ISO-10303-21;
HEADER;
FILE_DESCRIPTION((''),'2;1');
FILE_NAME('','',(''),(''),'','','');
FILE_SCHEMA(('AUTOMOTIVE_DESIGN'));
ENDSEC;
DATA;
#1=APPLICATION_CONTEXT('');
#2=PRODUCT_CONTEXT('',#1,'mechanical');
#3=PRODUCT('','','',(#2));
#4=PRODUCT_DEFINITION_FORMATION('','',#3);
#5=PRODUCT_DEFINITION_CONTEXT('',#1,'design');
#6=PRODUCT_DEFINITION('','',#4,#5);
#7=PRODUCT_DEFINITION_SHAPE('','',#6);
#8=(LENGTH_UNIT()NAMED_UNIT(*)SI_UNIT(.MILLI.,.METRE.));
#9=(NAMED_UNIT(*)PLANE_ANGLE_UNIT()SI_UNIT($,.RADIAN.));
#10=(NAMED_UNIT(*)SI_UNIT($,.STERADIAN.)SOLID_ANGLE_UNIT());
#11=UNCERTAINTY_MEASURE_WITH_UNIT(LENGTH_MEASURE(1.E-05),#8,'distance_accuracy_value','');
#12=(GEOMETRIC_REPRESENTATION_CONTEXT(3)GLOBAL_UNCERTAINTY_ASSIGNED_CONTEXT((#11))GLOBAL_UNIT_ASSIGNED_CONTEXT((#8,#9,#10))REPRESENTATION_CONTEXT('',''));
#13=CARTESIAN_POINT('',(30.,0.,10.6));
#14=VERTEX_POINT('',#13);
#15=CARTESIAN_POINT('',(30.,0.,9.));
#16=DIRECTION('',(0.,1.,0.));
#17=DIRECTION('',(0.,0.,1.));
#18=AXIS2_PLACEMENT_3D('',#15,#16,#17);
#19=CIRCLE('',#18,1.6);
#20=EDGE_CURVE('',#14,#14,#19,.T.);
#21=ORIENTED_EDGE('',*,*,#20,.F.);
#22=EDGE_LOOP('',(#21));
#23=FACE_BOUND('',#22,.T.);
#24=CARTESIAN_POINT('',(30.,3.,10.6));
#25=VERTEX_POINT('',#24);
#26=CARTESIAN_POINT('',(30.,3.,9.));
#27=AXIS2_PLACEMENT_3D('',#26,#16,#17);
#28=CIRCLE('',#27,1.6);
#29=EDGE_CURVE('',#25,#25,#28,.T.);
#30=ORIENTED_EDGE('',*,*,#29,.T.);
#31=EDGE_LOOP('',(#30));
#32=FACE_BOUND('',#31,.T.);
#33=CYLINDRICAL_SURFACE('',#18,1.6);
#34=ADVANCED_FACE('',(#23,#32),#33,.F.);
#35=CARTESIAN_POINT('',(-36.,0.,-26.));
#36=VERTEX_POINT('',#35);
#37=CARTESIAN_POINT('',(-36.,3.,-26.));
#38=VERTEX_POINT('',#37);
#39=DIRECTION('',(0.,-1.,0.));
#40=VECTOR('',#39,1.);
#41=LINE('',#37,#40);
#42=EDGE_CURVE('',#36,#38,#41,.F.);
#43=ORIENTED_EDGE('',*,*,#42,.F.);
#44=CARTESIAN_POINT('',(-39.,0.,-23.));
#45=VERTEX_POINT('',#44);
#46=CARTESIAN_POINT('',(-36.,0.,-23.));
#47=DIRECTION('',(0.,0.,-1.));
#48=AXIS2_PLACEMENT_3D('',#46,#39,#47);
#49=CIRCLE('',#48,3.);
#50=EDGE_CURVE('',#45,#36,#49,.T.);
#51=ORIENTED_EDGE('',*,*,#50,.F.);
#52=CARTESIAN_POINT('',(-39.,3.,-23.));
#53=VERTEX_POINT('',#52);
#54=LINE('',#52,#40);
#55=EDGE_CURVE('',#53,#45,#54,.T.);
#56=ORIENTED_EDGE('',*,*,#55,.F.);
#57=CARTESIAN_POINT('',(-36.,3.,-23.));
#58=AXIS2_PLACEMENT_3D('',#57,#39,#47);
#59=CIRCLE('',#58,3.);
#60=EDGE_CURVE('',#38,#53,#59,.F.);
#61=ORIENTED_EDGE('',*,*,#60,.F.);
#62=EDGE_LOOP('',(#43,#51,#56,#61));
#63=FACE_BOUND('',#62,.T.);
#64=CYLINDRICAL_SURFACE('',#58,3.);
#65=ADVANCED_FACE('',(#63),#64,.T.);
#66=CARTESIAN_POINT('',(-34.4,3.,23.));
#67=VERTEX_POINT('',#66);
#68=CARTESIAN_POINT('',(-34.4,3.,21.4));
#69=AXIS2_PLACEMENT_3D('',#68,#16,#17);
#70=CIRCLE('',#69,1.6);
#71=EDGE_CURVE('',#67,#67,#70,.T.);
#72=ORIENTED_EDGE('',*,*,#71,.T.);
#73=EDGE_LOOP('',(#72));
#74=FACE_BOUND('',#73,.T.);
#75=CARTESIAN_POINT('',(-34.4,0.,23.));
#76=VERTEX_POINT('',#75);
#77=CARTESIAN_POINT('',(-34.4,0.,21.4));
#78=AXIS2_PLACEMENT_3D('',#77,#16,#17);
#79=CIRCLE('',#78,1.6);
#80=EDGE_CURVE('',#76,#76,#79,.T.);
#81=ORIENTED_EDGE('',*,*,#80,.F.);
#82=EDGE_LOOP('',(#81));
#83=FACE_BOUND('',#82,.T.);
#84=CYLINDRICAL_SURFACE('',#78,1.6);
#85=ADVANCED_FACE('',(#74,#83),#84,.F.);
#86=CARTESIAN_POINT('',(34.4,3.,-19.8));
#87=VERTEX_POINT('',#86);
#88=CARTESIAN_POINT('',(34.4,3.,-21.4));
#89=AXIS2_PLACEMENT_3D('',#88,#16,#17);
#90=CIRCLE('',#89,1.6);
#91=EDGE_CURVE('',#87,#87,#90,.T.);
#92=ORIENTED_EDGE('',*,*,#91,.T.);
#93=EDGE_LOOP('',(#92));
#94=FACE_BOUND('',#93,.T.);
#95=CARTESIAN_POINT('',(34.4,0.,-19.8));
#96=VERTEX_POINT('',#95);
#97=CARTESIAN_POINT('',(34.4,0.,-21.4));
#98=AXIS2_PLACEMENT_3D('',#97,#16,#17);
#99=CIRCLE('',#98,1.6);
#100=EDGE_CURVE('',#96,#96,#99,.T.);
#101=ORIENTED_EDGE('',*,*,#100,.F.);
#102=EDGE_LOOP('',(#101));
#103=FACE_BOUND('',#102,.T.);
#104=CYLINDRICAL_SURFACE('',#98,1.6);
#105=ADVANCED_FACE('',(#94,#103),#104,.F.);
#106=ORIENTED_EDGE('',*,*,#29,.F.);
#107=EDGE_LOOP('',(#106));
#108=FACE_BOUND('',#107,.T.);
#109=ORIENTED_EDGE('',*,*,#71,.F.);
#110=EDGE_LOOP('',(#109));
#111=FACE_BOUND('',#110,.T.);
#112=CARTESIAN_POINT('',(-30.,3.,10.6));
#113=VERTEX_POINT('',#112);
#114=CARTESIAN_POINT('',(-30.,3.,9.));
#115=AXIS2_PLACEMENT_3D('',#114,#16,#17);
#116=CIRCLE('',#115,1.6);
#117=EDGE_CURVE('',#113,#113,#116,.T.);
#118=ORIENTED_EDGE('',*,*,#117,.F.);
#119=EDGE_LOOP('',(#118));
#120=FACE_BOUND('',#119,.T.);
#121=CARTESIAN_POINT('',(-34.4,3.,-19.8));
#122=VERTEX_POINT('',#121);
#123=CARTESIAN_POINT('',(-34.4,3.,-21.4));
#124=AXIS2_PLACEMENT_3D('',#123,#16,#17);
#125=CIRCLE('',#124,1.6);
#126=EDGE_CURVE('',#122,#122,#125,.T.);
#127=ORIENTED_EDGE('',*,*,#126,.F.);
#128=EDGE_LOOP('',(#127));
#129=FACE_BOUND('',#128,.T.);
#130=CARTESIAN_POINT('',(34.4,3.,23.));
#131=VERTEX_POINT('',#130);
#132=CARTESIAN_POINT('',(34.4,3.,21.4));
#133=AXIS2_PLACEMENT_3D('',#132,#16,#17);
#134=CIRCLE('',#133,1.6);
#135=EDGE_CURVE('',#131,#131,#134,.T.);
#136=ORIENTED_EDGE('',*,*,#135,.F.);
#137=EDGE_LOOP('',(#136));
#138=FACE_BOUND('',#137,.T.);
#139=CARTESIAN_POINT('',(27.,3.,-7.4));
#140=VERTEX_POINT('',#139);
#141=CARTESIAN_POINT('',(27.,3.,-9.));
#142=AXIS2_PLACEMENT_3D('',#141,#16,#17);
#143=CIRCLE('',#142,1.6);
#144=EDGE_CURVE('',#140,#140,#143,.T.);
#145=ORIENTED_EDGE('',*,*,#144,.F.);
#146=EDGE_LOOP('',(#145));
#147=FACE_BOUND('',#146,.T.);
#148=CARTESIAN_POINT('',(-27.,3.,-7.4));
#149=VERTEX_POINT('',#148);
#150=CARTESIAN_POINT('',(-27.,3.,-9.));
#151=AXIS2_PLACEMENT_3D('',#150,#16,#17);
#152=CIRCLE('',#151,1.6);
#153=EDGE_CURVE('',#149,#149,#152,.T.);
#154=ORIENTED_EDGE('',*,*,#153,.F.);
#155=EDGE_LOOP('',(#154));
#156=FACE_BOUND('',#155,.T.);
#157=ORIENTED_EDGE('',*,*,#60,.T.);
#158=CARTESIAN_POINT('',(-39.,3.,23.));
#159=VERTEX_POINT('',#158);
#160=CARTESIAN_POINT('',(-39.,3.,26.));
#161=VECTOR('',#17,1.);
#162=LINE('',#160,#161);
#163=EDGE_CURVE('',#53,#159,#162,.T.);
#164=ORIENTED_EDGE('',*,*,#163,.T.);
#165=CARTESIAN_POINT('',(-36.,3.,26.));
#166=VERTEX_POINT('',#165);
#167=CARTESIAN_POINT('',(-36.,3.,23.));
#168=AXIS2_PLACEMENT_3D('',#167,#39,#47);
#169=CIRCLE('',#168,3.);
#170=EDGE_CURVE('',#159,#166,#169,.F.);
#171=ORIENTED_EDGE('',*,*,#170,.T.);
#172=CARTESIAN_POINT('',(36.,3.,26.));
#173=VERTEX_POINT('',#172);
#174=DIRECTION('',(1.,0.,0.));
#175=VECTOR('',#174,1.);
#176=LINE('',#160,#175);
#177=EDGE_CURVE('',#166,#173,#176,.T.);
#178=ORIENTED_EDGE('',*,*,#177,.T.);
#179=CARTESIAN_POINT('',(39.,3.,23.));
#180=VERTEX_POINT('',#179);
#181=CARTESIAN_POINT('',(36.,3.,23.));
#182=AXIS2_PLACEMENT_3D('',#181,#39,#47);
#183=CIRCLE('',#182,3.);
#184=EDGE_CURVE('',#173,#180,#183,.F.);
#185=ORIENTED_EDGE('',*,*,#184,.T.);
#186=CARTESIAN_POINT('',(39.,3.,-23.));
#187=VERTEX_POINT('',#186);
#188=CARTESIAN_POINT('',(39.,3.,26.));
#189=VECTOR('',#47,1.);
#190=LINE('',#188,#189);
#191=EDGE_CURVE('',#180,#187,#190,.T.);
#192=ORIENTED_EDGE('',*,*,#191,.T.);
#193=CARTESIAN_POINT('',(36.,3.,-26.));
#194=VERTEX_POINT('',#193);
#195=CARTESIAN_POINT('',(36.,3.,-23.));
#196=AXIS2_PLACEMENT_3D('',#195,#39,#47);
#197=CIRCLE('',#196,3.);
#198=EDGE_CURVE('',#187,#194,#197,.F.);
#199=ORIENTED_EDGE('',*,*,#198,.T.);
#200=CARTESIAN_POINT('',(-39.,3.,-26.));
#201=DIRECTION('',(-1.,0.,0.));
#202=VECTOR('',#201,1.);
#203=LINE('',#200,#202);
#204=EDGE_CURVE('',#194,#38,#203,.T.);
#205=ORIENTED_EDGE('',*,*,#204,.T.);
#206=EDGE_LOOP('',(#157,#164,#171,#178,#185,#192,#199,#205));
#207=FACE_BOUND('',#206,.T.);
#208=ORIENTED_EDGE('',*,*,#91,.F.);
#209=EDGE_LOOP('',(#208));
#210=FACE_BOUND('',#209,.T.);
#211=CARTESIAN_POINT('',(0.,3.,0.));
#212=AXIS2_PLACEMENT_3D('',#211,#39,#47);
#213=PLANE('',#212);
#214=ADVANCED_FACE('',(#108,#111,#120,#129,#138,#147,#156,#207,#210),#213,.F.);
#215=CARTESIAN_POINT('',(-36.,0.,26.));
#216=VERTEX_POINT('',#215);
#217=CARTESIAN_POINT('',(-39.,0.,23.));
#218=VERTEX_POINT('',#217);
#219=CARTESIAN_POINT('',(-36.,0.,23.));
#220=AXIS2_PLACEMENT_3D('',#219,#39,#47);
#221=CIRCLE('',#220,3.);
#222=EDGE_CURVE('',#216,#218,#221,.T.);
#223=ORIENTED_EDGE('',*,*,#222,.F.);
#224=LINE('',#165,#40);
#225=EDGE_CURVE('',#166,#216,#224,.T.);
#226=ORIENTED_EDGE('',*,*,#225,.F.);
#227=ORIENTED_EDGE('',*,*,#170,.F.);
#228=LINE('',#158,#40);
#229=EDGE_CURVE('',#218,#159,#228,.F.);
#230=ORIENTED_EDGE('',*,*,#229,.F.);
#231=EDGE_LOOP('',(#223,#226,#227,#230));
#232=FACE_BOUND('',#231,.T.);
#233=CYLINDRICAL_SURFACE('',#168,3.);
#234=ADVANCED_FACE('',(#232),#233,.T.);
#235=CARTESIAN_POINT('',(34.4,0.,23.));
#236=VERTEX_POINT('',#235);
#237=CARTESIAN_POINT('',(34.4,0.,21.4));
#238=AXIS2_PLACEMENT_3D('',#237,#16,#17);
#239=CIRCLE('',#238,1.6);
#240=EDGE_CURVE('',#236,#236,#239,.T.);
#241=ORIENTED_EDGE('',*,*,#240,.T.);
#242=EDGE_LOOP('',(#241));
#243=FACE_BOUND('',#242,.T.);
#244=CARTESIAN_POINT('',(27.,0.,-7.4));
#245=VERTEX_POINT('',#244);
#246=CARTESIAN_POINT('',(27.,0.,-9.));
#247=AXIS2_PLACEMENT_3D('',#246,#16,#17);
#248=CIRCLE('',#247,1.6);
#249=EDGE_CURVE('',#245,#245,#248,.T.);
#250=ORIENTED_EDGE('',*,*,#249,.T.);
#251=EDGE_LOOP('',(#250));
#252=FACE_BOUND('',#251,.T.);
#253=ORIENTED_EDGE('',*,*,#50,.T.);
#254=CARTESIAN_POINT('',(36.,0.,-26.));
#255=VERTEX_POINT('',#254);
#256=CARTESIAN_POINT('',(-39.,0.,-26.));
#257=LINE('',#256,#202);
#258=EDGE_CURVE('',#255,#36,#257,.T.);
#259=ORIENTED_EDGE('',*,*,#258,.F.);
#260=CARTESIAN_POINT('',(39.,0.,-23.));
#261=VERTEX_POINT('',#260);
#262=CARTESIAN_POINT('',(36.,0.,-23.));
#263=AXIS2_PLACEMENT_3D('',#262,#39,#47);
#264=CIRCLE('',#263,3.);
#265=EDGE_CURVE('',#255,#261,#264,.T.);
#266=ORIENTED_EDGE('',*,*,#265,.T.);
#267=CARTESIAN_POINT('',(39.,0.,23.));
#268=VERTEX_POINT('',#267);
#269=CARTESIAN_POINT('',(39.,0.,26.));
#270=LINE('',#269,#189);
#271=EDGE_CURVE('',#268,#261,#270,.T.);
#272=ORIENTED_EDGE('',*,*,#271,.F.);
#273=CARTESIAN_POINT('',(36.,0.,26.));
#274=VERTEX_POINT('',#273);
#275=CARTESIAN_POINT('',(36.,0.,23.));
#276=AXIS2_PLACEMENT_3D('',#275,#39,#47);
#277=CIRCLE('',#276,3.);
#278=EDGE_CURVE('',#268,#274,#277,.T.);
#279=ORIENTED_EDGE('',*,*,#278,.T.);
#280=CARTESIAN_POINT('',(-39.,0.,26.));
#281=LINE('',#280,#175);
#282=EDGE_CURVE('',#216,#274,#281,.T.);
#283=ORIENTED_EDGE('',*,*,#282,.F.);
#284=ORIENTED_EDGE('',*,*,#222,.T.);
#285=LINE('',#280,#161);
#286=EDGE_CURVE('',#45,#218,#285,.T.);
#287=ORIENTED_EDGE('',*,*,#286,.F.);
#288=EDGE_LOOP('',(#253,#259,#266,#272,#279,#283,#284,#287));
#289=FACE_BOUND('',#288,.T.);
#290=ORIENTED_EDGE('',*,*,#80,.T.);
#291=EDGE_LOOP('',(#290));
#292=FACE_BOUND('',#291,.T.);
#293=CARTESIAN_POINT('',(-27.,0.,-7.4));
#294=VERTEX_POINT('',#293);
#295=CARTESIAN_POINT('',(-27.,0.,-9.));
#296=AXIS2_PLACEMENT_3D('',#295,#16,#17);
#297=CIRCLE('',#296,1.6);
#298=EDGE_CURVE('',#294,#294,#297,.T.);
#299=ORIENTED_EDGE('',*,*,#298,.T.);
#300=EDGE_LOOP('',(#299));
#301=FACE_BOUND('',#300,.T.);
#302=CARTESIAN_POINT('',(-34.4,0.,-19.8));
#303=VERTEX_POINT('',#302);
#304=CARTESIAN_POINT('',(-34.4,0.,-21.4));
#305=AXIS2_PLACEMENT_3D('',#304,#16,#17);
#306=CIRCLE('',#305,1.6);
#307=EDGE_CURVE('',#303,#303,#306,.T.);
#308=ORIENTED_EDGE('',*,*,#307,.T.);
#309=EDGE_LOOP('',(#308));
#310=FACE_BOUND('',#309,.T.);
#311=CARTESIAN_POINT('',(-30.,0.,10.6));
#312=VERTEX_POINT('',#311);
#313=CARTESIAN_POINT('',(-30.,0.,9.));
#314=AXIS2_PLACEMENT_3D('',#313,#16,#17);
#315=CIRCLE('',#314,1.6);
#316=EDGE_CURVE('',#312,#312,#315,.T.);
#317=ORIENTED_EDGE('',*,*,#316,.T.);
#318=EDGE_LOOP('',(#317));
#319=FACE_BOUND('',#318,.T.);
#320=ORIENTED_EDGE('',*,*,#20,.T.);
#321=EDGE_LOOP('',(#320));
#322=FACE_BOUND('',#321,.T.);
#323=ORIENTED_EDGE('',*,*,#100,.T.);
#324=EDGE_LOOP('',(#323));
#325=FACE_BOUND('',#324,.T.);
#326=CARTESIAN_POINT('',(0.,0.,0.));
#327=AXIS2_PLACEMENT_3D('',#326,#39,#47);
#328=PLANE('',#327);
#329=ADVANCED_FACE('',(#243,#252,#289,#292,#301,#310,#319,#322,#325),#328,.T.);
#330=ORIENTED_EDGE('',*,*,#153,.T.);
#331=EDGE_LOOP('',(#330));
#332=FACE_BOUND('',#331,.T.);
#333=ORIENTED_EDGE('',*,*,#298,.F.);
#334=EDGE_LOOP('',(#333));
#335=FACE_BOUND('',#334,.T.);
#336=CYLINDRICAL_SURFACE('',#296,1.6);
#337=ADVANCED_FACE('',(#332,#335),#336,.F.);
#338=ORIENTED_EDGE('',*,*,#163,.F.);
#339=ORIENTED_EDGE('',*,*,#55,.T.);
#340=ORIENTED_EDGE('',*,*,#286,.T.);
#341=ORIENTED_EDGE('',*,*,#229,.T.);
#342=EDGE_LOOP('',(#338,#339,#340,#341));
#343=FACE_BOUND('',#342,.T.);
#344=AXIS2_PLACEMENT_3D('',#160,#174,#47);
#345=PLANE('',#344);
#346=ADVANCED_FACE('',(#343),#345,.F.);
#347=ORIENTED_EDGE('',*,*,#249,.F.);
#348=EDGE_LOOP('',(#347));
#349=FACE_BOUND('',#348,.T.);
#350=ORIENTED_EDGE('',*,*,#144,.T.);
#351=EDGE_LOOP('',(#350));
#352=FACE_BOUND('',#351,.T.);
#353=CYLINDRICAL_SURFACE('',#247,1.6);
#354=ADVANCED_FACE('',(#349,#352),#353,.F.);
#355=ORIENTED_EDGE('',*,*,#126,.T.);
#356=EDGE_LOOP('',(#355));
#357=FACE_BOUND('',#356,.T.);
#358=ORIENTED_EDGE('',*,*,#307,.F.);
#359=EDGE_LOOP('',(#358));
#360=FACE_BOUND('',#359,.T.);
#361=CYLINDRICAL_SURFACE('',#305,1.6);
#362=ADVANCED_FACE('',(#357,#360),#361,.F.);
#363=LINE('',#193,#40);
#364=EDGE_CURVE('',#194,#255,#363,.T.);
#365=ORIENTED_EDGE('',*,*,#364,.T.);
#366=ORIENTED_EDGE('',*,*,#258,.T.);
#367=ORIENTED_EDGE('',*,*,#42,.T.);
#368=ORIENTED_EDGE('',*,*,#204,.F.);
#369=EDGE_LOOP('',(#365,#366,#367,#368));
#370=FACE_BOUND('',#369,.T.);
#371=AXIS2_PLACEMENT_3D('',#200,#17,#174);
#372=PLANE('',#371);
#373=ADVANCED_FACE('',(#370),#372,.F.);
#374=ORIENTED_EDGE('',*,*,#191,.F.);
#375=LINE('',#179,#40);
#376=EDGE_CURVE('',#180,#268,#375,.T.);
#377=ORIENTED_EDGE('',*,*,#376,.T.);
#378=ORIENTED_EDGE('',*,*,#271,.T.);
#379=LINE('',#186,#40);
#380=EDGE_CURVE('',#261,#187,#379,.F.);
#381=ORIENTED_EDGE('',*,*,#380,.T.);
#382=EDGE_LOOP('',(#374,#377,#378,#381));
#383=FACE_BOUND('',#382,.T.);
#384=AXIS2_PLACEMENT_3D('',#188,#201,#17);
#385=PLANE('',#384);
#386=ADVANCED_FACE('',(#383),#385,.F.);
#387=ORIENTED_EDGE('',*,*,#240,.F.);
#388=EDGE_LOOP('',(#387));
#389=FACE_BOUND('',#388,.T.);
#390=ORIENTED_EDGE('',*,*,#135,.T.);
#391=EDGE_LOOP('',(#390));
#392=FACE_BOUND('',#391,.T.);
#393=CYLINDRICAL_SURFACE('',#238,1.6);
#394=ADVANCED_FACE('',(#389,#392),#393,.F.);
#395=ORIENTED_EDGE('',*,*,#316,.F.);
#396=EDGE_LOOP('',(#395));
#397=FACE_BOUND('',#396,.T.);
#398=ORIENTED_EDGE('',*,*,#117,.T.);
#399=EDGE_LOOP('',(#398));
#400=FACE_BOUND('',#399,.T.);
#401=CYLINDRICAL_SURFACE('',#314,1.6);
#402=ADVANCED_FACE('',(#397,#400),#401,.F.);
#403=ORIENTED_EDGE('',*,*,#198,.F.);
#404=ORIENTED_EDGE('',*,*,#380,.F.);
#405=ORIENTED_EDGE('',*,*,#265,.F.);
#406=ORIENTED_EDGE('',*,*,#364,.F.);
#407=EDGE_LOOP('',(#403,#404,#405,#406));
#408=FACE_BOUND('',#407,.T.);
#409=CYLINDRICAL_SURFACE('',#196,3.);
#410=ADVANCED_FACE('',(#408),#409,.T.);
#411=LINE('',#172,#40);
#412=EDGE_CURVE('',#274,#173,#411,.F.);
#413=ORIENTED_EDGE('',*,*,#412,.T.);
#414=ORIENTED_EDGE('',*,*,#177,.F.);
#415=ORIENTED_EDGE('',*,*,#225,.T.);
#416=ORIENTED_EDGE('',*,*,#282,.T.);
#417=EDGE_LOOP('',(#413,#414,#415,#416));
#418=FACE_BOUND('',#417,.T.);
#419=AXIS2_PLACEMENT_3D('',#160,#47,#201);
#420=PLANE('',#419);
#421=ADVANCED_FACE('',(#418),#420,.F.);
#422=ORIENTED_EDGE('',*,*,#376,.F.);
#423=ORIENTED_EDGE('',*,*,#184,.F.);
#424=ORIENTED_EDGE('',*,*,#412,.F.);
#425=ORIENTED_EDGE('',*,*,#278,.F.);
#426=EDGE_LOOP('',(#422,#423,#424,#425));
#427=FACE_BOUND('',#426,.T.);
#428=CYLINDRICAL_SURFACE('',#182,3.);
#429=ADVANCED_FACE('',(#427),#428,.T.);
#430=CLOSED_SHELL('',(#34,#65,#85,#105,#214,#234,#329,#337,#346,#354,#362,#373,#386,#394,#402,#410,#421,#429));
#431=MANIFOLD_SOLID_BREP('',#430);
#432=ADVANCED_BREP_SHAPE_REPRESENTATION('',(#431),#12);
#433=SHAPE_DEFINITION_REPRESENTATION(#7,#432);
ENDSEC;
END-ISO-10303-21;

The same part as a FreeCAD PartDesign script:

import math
import FreeCAD as App
import Part
import Sketcher
from FreeCAD import Vector


def edges_at(feature, points):
    """Names of the edges that pass closest to the given points."""
    edges = feature.Shape.Edges
    near = lambda p: min(range(len(edges)), key=lambda i: edges[i].distToShape(Part.Vertex(*p))[0])
    return sorted({f"Edge{near(p) + 1}" for p in points})


def add_polygon(sketch, points):
    """Adds a closed chain of lines whose ends are joined by coincident constraints."""
    first, n = sketch.GeometryCount, len(points)
    for a, b in zip(points, points[1:] + points[:1]):
        sketch.addGeometry(Part.LineSegment(App.Vector(*a, 0), App.Vector(*b, 0)), False)
    for i in range(n):
        sketch.addConstraint(Sketcher.Constraint("Coincident", first + i, 2, first + (i + 1) % n, 1))

doc = App.newDocument("Part")
body = doc.addObject("PartDesign::Body", "Body")

# Sketch on XZ plane
sketch1 = doc.addObject("Sketcher::SketchObject", "Sketch")
body.addObject(sketch1)
sketch1.AttachmentSupport = (doc.XZ_Plane, [""])
sketch1.MapMode = "FlatFace"
add_polygon(sketch1, [(-39, -26), (-39, 26), (39, 26), (39, -26)])  # lines 0-3
sketch1.addConstraint([
    Sketcher.Constraint("Vertical", 0),
    Sketcher.Constraint("Horizontal", 1),
    Sketcher.Constraint("Vertical", 2),
    Sketcher.Constraint("Horizontal", 3),
    Sketcher.Constraint("Symmetric", 0, 2, 2, 2, -1, 1),
    Sketcher.Constraint("DistanceX", 1, 1, 1, 2, 78.0),
    Sketcher.Constraint("DistanceY", 0, 1, 0, 2, 52.0),
])
pad1 = doc.addObject("PartDesign::Pad", "Pad")
body.addObject(pad1)
pad1.Profile = sketch1
pad1.Length = 3
pad1.Reversed = True

# Sketch on XZ plane
sketch2 = doc.addObject("Sketcher::SketchObject", "Sketch001")
body.addObject(sketch2)
sketch2.AttachmentSupport = (doc.XZ_Plane, [""])
sketch2.MapMode = "FlatFace"
sketch2.AttachmentOffset = App.Placement(Vector(0, 0, -3), App.Rotation())
sketch2.addGeometry([
    Part.ArcOfCircle(Part.Circle(Vector(-34.4, -21.4, 0), Vector(0, 0, 1), 1.6), math.radians(-90), math.radians(0)),  # 0
    Part.ArcOfCircle(Part.Circle(Vector(-34.4, -21.4, 0), Vector(0, 0, 1), 1.6), math.radians(180), math.radians(270)),  # 1
    Part.ArcOfCircle(Part.Circle(Vector(-34.4, -21.4, 0), Vector(0, 0, 1), 1.6), math.radians(0), math.radians(180)),  # 2
    Part.ArcOfCircle(Part.Circle(Vector(34.4, -21.4, 0), Vector(0, 0, 1), 1.6), math.radians(-90), math.radians(0)),  # 3
    Part.ArcOfCircle(Part.Circle(Vector(34.4, -21.4, 0), Vector(0, 0, 1), 1.6), math.radians(0), math.radians(270)),  # 4
    Part.ArcOfCircle(Part.Circle(Vector(34.4, 21.4, 0), Vector(0, 0, 1), 1.6), math.radians(90), math.radians(360)),  # 5
    Part.ArcOfCircle(Part.Circle(Vector(34.4, 21.4, 0), Vector(0, 0, 1), 1.6), math.radians(0), math.radians(90)),  # 6
    Part.Circle(Vector(-34.4, 21.4, 0), Vector(0, 0, 1), 1.6),  # 7
], False)
sketch2.addConstraint([
    Sketcher.Constraint("Tangent", 0, 1, 1, 2),
    Sketcher.Constraint("Tangent", 1, 1, 2, 2),
    Sketcher.Constraint("Tangent", 2, 1, 0, 2),
    Sketcher.Constraint("Tangent", 3, 1, 4, 2),
    Sketcher.Constraint("Coincident", 4, 1, 3, 2),
    Sketcher.Constraint("Tangent", 5, 1, 6, 2),
    Sketcher.Constraint("Coincident", 6, 1, 5, 2),
    Sketcher.Constraint("Equal", 2, 3),
    Sketcher.Constraint("Equal", 4, 5),
    Sketcher.Constraint("Equal", 6, 7),
    Sketcher.Constraint("Symmetric", 0, 3, 5, 3, -1, 1),
    Sketcher.Constraint("Symmetric", 3, 3, 7, 3, -1, 1),
    Sketcher.Constraint("Symmetric", 0, 3, 3, 3, -2),
    Sketcher.Constraint("Horizontal", 4, 3, 1, 1),
    Sketcher.Constraint("Horizontal", 1, 1, 2, 1),
    Sketcher.Constraint("Horizontal", 2, 1, 4, 1),
    Sketcher.Constraint("Horizontal", 7, 3, 6, 1),
    Sketcher.Constraint("Vertical", 7, 3, 0, 1),
    Sketcher.Constraint("Vertical", 6, 3, 3, 1),
    Sketcher.Constraint("Vertical", 3, 1, 5, 1),
    Sketcher.Constraint("Diameter", 7, 3.2),
    Sketcher.Constraint("DistanceY", 0, 1, -1, 1, 23.0),
    Sketcher.Constraint("DistanceX", 1, 1, -1, 1, 36.0),
])
pocket1 = doc.addObject("PartDesign::Pocket", "Pocket")
body.addObject(pocket1)
pocket1.Profile = sketch2
pocket1.Length = 3
pocket1.Reversed = True

# Sketch on XZ plane
sketch3 = doc.addObject("Sketcher::SketchObject", "Sketch002")
body.addObject(sketch3)
sketch3.AttachmentSupport = (doc.XZ_Plane, [""])
sketch3.MapMode = "FlatFace"
sketch3.AttachmentOffset = App.Placement(Vector(0, 0, -3), App.Rotation())
sketch3.addGeometry([
    Part.Circle(Vector(-30, 9, 0), Vector(0, 0, 1), 1.6),
    Part.Circle(Vector(-27, -9, 0), Vector(0, 0, 1), 1.6),
    Part.Circle(Vector(27, -9, 0), Vector(0, 0, 1), 1.6),
    Part.Circle(Vector(30, 9, 0), Vector(0, 0, 1), 1.6),
], False)
sketch3.addConstraint([
    Sketcher.Constraint("Equal", 0, 1),
    Sketcher.Constraint("Equal", 1, 2),
    Sketcher.Constraint("Equal", 2, 3),
    Sketcher.Constraint("Symmetric", 1, 3, 2, 3, -2),
    Sketcher.Constraint("Symmetric", 0, 3, 3, 3, -2),
    Sketcher.Constraint("Diameter", 0, 3.2),
    Sketcher.Constraint("DistanceX", 0, 3, -1, 1, 30.0),
    Sketcher.Constraint("DistanceY", -1, 1, 0, 3, 9.0),
    Sketcher.Constraint("DistanceX", 1, 3, -1, 1, 27.0),
    Sketcher.Constraint("DistanceY", 1, 3, -1, 1, 9.0),
])
pocket2 = doc.addObject("PartDesign::Pocket", "Pocket001")
body.addObject(pocket2)
pocket2.Profile = sketch3
pocket2.Length = 3
pocket2.Reversed = True
doc.recompute()

fillet = doc.addObject("PartDesign::Fillet", "Fillet")
body.addObject(fillet)
fillet.Base = (pocket2, edges_at(pocket2, [
    (39, 1.5, 26),
    (-39, 1.5, 26),
    (-39, 1.5, -26),
    (39, 1.5, -26),
]))
fillet.Radius = 3

doc.recompute()
